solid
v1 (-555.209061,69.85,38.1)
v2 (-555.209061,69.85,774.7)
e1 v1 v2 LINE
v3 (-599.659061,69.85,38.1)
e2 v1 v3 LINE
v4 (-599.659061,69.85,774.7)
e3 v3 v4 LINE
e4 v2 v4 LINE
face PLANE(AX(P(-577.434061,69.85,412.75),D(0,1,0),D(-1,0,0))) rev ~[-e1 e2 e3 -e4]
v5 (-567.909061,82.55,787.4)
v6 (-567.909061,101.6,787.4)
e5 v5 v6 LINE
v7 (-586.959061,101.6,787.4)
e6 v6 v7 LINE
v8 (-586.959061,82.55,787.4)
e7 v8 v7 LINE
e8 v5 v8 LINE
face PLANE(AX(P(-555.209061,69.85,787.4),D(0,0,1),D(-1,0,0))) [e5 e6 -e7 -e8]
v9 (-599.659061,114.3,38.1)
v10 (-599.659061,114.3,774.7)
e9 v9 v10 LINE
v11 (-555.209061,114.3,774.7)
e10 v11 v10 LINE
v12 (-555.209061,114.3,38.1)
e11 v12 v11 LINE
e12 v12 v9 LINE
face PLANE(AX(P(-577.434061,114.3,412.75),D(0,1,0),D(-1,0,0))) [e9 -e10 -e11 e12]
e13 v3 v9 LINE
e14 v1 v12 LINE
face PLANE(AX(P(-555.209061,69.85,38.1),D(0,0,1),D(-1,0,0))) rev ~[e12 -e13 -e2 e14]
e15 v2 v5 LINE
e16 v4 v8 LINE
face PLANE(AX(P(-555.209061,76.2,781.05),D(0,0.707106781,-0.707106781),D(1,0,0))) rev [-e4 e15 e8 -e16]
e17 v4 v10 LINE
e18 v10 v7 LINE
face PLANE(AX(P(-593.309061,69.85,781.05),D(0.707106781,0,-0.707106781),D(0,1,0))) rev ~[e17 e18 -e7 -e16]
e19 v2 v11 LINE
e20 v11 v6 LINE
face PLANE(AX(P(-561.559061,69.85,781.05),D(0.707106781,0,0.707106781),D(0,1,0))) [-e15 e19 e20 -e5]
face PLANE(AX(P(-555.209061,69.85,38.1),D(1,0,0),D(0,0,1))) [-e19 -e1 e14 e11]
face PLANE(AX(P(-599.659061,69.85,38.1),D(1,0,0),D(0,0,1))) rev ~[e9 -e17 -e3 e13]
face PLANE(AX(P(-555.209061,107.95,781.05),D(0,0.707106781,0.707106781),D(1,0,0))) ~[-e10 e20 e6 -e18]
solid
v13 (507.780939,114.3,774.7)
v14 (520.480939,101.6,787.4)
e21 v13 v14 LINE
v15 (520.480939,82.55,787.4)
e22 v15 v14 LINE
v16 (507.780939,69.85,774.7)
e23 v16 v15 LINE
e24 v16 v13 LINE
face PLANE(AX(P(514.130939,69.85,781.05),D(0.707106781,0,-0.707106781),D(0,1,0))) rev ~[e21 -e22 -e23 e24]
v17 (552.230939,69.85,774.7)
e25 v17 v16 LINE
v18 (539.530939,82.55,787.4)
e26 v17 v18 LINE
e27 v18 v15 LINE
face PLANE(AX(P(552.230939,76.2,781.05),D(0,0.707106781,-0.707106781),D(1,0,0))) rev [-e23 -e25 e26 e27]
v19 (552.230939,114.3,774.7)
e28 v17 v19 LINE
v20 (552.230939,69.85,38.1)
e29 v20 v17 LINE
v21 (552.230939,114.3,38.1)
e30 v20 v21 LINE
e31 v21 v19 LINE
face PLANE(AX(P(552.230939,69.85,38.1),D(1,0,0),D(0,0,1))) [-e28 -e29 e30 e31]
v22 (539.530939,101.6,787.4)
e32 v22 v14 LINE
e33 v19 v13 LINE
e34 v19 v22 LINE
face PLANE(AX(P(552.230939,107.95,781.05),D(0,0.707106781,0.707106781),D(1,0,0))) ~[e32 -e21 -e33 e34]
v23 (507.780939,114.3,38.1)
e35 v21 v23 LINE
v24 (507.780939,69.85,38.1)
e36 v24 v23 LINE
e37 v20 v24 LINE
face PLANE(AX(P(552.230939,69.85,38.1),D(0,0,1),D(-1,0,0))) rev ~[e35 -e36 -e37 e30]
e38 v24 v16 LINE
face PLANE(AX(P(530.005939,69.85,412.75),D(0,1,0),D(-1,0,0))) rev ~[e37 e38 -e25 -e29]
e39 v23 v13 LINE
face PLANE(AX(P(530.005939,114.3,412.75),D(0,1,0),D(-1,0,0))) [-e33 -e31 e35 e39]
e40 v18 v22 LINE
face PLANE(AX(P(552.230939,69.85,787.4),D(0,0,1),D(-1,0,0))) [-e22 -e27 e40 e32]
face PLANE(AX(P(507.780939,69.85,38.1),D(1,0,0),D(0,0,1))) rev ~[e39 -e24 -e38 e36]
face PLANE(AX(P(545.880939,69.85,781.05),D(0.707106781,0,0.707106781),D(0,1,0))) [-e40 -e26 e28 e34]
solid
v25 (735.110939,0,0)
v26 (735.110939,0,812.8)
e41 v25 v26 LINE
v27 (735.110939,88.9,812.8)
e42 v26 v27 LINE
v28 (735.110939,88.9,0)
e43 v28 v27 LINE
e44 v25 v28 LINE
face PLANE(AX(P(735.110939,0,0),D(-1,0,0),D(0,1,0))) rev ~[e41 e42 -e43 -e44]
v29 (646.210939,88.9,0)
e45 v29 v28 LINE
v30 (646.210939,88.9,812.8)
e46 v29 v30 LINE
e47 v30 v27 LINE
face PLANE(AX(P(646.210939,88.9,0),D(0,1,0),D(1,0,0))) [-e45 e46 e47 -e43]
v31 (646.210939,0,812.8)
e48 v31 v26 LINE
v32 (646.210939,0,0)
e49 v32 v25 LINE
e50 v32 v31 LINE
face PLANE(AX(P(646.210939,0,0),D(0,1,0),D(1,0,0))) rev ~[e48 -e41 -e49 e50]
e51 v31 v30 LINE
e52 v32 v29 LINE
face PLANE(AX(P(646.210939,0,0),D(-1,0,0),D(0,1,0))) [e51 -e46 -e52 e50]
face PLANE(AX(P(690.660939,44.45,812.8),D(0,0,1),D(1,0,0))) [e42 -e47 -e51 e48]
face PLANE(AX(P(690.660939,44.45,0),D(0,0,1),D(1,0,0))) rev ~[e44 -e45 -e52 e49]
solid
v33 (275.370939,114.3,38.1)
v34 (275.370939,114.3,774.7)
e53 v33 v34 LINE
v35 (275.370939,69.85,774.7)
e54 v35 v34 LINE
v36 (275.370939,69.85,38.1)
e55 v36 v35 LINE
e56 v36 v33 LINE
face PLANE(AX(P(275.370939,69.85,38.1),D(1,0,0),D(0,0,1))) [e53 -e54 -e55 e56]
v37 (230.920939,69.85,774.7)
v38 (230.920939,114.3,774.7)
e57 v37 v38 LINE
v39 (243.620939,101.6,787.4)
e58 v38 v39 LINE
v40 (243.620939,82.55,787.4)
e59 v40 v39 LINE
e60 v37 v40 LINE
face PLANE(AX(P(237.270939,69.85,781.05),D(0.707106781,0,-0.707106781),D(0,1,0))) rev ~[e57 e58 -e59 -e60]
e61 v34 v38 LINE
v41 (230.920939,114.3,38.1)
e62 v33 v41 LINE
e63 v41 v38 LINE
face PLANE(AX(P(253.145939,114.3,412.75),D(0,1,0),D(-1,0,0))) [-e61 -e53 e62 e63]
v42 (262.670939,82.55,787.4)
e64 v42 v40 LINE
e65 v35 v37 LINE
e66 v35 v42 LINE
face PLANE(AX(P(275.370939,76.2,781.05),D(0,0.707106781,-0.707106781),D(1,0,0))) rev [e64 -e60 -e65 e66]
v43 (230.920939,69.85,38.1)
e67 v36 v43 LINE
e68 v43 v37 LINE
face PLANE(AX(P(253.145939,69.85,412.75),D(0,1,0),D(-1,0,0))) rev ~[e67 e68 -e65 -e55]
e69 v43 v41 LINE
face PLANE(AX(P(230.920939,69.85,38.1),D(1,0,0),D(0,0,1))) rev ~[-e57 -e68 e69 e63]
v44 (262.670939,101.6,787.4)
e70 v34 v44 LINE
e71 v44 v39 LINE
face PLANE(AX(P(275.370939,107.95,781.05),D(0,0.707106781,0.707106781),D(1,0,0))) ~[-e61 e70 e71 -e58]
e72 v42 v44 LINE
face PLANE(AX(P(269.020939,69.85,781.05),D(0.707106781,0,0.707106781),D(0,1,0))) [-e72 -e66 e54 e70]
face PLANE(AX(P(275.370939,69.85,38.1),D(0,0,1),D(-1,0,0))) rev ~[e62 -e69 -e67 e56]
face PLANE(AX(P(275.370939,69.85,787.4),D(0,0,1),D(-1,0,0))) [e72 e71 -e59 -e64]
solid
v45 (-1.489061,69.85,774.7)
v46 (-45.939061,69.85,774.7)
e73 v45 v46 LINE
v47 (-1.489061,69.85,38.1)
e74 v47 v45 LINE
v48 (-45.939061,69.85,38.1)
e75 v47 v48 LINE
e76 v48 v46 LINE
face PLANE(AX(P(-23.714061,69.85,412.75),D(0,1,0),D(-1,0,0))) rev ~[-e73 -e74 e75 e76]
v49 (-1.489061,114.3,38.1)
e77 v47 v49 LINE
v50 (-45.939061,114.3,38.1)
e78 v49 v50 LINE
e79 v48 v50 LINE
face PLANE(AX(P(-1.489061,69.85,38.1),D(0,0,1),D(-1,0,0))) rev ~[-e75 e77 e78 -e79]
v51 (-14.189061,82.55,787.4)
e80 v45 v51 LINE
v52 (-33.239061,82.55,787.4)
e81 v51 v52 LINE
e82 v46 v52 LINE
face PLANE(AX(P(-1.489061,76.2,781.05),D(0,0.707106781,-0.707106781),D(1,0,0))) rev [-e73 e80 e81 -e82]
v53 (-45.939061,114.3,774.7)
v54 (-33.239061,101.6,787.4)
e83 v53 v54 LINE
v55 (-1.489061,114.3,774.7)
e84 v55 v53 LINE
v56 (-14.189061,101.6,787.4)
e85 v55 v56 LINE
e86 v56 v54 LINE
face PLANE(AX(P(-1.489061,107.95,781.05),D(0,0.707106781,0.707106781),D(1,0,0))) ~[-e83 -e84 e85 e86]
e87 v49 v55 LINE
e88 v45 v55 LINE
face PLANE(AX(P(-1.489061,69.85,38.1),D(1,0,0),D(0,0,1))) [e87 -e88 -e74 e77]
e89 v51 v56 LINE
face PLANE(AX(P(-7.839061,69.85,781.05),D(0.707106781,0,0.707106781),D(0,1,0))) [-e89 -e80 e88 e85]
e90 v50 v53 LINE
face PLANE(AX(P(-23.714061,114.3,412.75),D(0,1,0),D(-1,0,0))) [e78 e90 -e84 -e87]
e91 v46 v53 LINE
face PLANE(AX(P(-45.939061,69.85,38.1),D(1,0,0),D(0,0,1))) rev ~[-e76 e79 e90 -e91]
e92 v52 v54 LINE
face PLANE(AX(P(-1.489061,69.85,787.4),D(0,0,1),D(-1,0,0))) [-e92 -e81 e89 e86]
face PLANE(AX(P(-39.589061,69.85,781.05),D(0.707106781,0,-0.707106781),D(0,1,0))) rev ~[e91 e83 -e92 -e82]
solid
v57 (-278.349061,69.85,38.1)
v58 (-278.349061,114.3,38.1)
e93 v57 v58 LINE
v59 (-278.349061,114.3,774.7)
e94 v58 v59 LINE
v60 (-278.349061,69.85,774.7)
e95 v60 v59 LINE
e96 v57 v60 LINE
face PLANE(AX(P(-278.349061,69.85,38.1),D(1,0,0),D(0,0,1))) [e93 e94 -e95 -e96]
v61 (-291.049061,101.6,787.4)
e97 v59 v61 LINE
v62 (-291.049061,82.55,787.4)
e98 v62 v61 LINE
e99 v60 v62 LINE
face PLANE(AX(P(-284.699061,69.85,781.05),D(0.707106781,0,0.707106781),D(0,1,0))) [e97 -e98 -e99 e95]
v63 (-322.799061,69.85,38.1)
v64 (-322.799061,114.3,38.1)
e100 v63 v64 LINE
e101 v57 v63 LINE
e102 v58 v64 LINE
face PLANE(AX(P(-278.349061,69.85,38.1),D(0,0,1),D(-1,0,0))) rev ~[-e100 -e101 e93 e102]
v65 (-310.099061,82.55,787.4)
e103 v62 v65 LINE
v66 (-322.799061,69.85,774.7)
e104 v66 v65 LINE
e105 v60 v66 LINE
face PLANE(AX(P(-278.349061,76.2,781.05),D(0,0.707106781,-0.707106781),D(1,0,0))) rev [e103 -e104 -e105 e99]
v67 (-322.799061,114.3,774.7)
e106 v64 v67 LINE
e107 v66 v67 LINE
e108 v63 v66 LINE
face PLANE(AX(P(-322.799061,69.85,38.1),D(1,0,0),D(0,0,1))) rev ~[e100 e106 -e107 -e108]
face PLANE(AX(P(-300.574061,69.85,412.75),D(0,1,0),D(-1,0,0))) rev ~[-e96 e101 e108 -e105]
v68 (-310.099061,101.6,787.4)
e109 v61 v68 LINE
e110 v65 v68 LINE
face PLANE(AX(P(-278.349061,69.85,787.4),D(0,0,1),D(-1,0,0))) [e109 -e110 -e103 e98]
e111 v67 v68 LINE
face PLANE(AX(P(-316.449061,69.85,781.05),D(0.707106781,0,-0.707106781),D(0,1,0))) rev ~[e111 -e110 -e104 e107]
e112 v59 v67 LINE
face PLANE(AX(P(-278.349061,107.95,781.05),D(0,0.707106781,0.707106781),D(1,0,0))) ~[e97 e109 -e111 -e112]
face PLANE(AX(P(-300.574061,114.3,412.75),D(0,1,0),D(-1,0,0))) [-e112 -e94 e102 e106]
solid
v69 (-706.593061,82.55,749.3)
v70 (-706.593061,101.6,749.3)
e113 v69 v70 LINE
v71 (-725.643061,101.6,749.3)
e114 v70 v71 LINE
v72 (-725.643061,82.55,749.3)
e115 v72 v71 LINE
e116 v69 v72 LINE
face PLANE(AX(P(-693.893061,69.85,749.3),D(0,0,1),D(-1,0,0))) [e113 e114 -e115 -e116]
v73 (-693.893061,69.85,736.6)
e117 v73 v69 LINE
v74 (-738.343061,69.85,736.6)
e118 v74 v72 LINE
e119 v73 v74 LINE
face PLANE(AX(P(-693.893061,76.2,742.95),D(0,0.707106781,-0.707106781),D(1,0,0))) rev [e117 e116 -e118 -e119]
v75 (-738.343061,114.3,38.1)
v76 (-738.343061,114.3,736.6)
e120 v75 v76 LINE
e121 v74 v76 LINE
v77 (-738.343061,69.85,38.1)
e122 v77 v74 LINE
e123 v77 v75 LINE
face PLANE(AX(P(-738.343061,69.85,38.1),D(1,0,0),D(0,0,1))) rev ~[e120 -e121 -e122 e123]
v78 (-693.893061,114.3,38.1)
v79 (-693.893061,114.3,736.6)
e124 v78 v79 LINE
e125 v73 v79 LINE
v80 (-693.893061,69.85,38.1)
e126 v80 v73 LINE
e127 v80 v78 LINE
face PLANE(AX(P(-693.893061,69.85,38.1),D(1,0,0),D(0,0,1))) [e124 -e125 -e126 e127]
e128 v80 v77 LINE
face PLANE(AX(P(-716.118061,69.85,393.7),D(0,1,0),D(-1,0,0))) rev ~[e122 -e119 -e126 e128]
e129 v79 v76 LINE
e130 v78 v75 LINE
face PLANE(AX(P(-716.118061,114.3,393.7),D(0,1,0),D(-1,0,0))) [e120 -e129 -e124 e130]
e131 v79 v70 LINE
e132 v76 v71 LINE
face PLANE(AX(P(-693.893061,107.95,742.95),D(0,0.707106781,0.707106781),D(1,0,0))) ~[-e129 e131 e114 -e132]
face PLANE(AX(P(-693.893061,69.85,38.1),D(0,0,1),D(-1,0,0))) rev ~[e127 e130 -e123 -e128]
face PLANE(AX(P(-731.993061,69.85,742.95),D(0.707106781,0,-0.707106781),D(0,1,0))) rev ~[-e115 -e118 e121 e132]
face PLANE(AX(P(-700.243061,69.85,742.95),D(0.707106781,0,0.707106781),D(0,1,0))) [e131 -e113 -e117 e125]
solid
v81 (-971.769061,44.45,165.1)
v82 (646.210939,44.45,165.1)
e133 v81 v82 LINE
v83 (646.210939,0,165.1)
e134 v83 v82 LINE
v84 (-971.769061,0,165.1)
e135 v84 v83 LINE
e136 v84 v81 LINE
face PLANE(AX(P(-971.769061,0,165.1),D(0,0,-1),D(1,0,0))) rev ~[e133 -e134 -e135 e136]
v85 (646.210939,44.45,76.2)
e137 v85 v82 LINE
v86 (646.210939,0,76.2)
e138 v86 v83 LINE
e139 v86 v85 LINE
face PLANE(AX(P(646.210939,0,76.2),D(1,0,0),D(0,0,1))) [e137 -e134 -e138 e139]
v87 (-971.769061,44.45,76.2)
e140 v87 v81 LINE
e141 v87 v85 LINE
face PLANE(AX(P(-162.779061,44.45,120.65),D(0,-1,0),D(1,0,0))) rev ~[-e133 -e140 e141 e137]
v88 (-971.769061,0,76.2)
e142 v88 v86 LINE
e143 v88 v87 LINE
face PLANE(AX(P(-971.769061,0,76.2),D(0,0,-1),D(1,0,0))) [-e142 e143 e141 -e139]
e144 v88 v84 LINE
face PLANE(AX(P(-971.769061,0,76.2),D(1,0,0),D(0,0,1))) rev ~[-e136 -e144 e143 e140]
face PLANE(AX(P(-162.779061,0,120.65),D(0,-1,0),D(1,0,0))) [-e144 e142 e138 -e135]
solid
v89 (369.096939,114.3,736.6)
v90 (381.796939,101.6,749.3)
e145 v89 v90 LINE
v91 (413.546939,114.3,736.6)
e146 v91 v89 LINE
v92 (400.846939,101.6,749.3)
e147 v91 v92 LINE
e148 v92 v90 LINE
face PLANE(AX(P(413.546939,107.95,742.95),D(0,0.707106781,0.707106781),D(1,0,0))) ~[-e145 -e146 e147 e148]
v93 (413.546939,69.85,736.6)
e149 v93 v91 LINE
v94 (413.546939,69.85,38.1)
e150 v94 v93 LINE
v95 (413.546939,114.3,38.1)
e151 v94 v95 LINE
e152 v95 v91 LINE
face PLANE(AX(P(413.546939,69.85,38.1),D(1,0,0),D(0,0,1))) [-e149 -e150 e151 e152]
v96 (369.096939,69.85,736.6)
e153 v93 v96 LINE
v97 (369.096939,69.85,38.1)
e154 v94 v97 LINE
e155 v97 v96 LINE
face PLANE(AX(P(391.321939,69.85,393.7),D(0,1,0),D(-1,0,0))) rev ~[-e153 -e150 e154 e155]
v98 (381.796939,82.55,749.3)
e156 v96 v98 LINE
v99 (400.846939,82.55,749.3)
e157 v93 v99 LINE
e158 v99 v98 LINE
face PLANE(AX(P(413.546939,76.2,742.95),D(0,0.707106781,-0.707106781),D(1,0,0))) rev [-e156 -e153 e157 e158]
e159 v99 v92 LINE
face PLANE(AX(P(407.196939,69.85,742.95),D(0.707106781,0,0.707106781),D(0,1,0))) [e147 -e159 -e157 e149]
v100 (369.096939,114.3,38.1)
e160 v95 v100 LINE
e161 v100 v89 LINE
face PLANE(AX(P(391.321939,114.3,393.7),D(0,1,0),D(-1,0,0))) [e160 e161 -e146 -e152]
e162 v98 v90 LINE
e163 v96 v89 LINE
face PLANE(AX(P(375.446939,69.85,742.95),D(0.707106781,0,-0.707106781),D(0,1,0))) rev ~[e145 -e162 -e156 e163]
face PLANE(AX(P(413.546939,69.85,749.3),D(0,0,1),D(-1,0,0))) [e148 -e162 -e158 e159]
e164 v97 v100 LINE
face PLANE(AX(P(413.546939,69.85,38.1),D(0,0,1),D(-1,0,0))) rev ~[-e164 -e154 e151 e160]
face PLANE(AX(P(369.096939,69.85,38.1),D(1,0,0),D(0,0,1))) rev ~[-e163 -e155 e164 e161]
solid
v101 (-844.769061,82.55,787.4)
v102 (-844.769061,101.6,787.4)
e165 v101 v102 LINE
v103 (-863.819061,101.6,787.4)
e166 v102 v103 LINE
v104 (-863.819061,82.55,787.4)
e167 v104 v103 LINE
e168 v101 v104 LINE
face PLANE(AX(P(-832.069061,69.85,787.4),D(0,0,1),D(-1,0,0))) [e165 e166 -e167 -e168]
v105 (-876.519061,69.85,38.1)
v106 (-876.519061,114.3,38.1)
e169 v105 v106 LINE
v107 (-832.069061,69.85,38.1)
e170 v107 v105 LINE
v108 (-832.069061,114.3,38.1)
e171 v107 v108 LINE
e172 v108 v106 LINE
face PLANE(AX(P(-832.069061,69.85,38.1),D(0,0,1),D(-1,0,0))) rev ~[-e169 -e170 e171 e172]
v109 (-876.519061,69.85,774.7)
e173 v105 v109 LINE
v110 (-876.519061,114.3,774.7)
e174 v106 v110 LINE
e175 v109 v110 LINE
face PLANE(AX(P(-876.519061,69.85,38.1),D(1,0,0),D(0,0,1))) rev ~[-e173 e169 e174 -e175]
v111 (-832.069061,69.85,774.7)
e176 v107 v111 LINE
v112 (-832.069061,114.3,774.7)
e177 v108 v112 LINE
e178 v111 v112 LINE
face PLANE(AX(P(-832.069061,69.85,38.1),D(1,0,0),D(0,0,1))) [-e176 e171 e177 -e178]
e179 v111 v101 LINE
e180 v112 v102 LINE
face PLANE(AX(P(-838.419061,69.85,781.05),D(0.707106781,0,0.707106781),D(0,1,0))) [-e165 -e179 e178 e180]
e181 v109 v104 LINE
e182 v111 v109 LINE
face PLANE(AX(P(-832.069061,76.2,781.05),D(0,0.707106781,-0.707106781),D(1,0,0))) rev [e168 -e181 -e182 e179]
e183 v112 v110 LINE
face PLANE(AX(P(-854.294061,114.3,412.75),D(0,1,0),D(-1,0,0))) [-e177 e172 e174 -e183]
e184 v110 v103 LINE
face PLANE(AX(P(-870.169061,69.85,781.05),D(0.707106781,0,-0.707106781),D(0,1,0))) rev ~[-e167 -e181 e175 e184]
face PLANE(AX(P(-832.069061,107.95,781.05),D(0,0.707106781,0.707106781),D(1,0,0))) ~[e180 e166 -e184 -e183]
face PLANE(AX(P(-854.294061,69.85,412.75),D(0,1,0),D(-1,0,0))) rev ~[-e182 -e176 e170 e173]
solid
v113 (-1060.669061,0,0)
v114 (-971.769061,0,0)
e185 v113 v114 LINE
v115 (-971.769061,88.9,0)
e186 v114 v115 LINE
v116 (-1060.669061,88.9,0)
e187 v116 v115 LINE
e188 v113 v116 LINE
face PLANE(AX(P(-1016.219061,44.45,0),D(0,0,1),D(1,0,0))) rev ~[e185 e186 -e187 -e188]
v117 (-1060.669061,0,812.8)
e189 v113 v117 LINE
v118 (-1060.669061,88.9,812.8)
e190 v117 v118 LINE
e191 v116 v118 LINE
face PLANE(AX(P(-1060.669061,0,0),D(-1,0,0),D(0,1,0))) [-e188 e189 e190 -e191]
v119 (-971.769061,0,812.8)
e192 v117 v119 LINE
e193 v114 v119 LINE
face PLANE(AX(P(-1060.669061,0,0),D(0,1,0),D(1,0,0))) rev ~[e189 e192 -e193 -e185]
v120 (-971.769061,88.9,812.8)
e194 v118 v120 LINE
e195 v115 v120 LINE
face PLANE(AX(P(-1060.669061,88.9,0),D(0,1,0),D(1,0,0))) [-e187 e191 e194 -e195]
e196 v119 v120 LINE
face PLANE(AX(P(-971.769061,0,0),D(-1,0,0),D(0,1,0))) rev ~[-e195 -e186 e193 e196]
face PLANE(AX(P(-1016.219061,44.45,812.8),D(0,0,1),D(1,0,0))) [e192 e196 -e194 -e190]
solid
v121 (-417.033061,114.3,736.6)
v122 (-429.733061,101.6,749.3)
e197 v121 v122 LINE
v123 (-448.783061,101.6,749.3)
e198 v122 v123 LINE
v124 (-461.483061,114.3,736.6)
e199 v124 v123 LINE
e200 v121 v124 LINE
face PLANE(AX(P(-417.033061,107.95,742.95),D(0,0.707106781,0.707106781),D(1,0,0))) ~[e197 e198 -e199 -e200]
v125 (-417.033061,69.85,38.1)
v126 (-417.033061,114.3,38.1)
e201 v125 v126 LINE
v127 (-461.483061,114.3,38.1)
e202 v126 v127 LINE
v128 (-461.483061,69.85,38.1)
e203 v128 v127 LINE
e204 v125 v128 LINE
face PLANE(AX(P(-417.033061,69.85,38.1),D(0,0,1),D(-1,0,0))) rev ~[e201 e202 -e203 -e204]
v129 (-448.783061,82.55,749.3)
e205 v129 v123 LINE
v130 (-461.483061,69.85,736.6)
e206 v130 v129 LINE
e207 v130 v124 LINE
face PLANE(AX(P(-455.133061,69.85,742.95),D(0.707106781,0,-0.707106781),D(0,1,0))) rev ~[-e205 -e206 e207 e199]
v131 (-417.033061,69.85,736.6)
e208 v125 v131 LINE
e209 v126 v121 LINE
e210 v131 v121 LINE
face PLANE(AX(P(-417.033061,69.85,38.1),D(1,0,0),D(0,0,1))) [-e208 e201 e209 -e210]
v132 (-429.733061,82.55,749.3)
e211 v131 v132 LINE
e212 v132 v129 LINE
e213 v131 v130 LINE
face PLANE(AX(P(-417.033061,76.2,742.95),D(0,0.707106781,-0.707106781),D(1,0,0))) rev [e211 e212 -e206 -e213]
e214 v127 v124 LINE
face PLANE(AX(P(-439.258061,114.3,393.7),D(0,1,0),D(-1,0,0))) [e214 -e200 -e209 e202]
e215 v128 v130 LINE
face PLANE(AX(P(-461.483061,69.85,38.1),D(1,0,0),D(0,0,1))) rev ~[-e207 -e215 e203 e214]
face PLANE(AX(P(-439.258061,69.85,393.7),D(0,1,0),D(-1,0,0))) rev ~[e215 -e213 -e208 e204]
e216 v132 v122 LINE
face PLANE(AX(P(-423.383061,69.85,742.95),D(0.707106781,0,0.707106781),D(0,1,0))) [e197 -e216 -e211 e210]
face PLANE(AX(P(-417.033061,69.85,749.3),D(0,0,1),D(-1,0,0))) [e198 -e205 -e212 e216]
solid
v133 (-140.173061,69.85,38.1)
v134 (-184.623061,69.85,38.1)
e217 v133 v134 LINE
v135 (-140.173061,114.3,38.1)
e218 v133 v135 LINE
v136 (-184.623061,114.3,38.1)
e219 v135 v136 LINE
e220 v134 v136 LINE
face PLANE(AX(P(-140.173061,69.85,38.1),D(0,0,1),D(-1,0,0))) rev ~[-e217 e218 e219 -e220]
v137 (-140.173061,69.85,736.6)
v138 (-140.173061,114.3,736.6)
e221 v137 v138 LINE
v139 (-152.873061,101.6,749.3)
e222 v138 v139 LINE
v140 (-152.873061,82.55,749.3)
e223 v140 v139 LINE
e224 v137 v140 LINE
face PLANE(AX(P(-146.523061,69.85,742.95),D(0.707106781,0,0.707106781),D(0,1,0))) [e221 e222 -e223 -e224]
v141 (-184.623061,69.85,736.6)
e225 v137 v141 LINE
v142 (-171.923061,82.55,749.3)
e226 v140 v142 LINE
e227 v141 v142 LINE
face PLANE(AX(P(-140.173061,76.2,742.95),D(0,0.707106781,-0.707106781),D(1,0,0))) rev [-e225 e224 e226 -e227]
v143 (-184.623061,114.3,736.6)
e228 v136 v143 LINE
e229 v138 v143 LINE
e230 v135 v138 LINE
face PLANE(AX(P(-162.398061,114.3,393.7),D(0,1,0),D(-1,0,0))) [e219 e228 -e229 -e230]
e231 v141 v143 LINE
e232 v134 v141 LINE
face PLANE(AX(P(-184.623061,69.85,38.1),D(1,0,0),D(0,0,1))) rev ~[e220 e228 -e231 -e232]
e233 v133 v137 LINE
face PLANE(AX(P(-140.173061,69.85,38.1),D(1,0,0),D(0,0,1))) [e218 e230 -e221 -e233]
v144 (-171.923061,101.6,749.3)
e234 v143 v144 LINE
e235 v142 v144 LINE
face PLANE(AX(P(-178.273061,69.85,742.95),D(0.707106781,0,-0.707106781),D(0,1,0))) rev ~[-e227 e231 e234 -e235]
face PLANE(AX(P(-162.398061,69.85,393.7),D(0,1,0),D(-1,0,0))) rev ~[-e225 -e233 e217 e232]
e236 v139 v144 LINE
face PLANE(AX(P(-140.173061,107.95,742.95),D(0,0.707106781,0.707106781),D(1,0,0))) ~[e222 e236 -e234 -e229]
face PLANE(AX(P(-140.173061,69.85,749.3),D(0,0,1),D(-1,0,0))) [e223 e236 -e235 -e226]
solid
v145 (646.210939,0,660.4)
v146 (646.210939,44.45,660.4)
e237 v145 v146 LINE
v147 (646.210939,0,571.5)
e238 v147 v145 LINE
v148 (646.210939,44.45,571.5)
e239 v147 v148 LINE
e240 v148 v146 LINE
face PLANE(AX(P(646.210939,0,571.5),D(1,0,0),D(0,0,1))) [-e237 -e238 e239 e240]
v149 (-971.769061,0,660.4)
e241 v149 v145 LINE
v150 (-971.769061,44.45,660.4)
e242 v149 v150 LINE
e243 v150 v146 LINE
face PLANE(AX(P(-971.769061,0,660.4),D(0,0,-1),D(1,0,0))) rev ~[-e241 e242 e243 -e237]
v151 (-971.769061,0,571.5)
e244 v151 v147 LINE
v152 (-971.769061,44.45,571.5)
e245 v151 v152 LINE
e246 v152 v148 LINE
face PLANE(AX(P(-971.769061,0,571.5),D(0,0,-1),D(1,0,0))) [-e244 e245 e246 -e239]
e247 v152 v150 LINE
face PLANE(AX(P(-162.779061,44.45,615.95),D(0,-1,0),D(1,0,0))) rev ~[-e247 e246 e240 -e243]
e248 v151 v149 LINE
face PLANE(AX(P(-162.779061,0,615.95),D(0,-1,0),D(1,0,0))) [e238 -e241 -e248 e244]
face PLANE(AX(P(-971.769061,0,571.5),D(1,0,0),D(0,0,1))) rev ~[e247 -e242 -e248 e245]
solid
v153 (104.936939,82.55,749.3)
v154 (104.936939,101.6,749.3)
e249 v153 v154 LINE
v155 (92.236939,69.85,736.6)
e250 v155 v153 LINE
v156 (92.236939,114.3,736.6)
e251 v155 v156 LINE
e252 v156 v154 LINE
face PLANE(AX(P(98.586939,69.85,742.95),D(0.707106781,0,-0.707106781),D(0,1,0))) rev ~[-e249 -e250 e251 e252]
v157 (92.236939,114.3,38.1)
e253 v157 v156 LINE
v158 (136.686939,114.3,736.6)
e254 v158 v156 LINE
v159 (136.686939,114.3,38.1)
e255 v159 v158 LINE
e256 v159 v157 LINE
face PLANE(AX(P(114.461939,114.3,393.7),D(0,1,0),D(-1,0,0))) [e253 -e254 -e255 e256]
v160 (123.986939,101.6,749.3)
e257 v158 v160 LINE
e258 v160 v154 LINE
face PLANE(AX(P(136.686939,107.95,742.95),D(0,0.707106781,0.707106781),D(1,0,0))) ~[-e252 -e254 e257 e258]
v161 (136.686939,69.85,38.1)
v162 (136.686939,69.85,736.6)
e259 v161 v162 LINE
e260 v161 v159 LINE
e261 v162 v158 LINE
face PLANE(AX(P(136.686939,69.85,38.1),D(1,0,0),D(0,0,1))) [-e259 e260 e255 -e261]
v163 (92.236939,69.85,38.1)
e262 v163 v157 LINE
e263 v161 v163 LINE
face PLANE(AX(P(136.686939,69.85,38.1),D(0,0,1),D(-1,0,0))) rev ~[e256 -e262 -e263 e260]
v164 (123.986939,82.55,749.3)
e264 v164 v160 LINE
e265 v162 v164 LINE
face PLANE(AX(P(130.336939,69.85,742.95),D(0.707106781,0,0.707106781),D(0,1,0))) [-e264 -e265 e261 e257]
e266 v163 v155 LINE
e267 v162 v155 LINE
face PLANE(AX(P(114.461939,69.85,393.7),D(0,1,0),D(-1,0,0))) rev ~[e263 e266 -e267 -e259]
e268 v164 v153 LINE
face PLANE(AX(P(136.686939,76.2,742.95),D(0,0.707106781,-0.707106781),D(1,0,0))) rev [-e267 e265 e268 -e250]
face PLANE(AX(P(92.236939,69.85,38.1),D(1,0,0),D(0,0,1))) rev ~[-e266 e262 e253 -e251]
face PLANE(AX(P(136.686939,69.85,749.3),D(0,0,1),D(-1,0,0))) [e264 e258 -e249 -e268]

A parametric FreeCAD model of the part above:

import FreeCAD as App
import Part
import Sketcher
Q = App.Units.Quantity


def edges_at(feature, points):
    """Names of the edges that pass closest to the given points."""
    edges = feature.Shape.Edges
    near = lambda p: min(range(len(edges)), key=lambda i: edges[i].distToShape(Part.Vertex(*p))[0])
    return sorted({f"Edge{near(p) + 1}" for p in points})

doc = App.newDocument("Part")
body = doc.addObject("PartDesign::Body", "Body")

# Sketch on XY plane
sketch1 = body.newObject("Sketcher::SketchObject", "Sketch")
sketch1.AttachmentSupport = (doc.getObject("XY_Plane"), [""])
sketch1.MapMode = "FlatFace"
sketch1.addGeometry([
    Part.LineSegment(App.Vector(-1060.669061, 88.9, 0), App.Vector(-1060.669061, 0, 0)),
    Part.LineSegment(App.Vector(-1060.669061, 0, 0), App.Vector(-971.769061, 0, 0)),
    Part.LineSegment(App.Vector(-971.769061, 0, 0), App.Vector(-971.769061, 88.9, 0)),
    Part.LineSegment(App.Vector(-971.769061, 88.9, 0), App.Vector(-1060.669061, 88.9, 0)),
], False)
sketch1.addConstraint([
    Sketcher.Constraint("Coincident", 0, 2, 1, 1),
    Sketcher.Constraint("Coincident", 1, 2, 2, 1),
    Sketcher.Constraint("Coincident", 2, 2, 3, 1),
    Sketcher.Constraint("Coincident", 3, 2, 0, 1),
    Sketcher.Constraint("Vertical", 0),
    Sketcher.Constraint("Horizontal", 1),
    Sketcher.Constraint("Vertical", 2),
    Sketcher.Constraint("Horizontal", 3),
    Sketcher.Constraint("PointOnObject", 0, 2, -1),
    Sketcher.Constraint("Equal", 3, 0),
    Sketcher.Constraint("DistanceX", 1, 1, 1, 2, Q("3.5 in")),
    Sketcher.Constraint("DistanceX", 0, 2, -1, 1, Q("1060.669061 mm")),
])
pad1 = body.newObject("PartDesign::Pad", "Pad")
pad1.Profile = sketch1
pad1.Length = Q("32 in")
body2 = doc.addObject("PartDesign::Body", "Body001")

# Sketch on XY plane
sketch2 = body2.newObject("Sketcher::SketchObject", "Sketch001")
sketch2.AttachmentSupport = (doc.getObject("XY_Plane001"), [""])
sketch2.MapMode = "FlatFace"
sketch2.addGeometry([
    Part.LineSegment(App.Vector(646.210939, 88.9, 0), App.Vector(646.210939, 0, 0)),
    Part.LineSegment(App.Vector(646.210939, 0, 0), App.Vector(735.110939, 0, 0)),
    Part.LineSegment(App.Vector(735.110939, 0, 0), App.Vector(735.110939, 88.9, 0)),
    Part.LineSegment(App.Vector(735.110939, 88.9, 0), App.Vector(646.210939, 88.9, 0)),
], False)
sketch2.addConstraint([
    Sketcher.Constraint("Coincident", 0, 2, 1, 1),
    Sketcher.Constraint("Coincident", 1, 2, 2, 1),
    Sketcher.Constraint("Coincident", 2, 2, 3, 1),
    Sketcher.Constraint("Coincident", 3, 2, 0, 1),
    Sketcher.Constraint("Vertical", 0),
    Sketcher.Constraint("Horizontal", 1),
    Sketcher.Constraint("Vertical", 2),
    Sketcher.Constraint("Horizontal", 3),
    Sketcher.Constraint("PointOnObject", 0, 2, -1),
    Sketcher.Constraint("Equal", 3, 0),
    Sketcher.Constraint("DistanceX", 1, 1, 1, 2, Q("3.5 in")),
    Sketcher.Constraint("DistanceX", -1, 1, 0, 2, Q("646.210939 mm")),
])
pad2 = body2.newObject("PartDesign::Pad", "Pad001")
pad2.Profile = sketch2
pad2.Length = Q("32 in")
body3 = doc.addObject("PartDesign::Body", "Body002")

# Sketch on XZ plane
sketch3 = body3.newObject("Sketcher::SketchObject", "Sketch002")
sketch3.AttachmentSupport = (doc.getObject("XZ_Plane002"), [""])
sketch3.MapMode = "FlatFace"
sketch3.addGeometry([
    Part.LineSegment(App.Vector(-971.769061, 660.4, 0), App.Vector(-971.769061, 571.5, 0)),
    Part.LineSegment(App.Vector(-971.769061, 571.5, 0), App.Vector(646.210939, 571.5, 0)),
    Part.LineSegment(App.Vector(646.210939, 571.5, 0), App.Vector(646.210939, 660.4, 0)),
    Part.LineSegment(App.Vector(646.210939, 660.4, 0), App.Vector(-971.769061, 660.4, 0)),
], False)
sketch3.addConstraint([
    Sketcher.Constraint("Coincident", 0, 2, 1, 1),
    Sketcher.Constraint("Coincident", 1, 2, 2, 1),
    Sketcher.Constraint("Coincident", 2, 2, 3, 1),
    Sketcher.Constraint("Coincident", 3, 2, 0, 1),
    Sketcher.Constraint("Vertical", 0),
    Sketcher.Constraint("Horizontal", 1),
    Sketcher.Constraint("Vertical", 2),
    Sketcher.Constraint("Horizontal", 3),
    Sketcher.Constraint("DistanceX", 1, 1, 1, 2, Q("63.7 in")),
    Sketcher.Constraint("DistanceY", 0, 2, 0, 1, Q("3.5 in")),
    Sketcher.Constraint("DistanceY", -1, 1, 2, 2, Q("26 in")),
    Sketcher.Constraint("DistanceX", 0, 2, -1, 1, Q("971.769061 mm")),
])
pad3 = body3.newObject("PartDesign::Pad", "Pad002")
pad3.Profile = sketch3
pad3.Length = Q("1.75 in")
pad3.Reversed = True
body4 = doc.addObject("PartDesign::Body", "Body003")

# Sketch on XZ plane
sketch4 = body4.newObject("Sketcher::SketchObject", "Sketch003")
sketch4.AttachmentSupport = (doc.getObject("XZ_Plane003"), [""])
sketch4.MapMode = "FlatFace"
sketch4.addGeometry([
    Part.LineSegment(App.Vector(-971.769061, 165.1, 0), App.Vector(-971.769061, 76.2, 0)),
    Part.LineSegment(App.Vector(-971.769061, 76.2, 0), App.Vector(646.210939, 76.2, 0)),
    Part.LineSegment(App.Vector(646.210939, 76.2, 0), App.Vector(646.210939, 165.1, 0)),
    Part.LineSegment(App.Vector(646.210939, 165.1, 0), App.Vector(-971.769061, 165.1, 0)),
], False)
sketch4.addConstraint([
    Sketcher.Constraint("Coincident", 0, 2, 1, 1),
    Sketcher.Constraint("Coincident", 1, 2, 2, 1),
    Sketcher.Constraint("Coincident", 2, 2, 3, 1),
    Sketcher.Constraint("Coincident", 3, 2, 0, 1),
    Sketcher.Constraint("Vertical", 0),
    Sketcher.Constraint("Horizontal", 1),
    Sketcher.Constraint("Vertical", 2),
    Sketcher.Constraint("Horizontal", 3),
    Sketcher.Constraint("DistanceX", 1, 1, 1, 2, Q("63.7 in")),
    Sketcher.Constraint("DistanceY", 0, 2, 0, 1, Q("3.5 in")),
    Sketcher.Constraint("DistanceY", -1, 1, 0, 2, Q("3 in")),
    Sketcher.Constraint("DistanceX", 0, 2, -1, 1, Q("971.769061 mm")),
])
pad4 = body4.newObject("PartDesign::Pad", "Pad003")
pad4.Profile = sketch4
pad4.Length = Q("1.75 in")
pad4.Reversed = True
body5 = doc.addObject("PartDesign::Body", "Body004")

# Sketch on XZ plane
sketch5 = body5.newObject("Sketcher::SketchObject", "Sketch004")
sketch5.AttachmentSupport = (doc.getObject("XZ_Plane004"), [""])
sketch5.MapMode = "FlatFace"
sketch5.AttachmentOffset = App.Placement(App.Vector(0, 0, -2.75 * 25.4), App.Rotation())
sketch5.addGeometry([
    Part.LineSegment(App.Vector(552.230939, 787.4, 0), App.Vector(552.230939, 38.1, 0)),
    Part.LineSegment(App.Vector(552.230939, 38.1, 0), App.Vector(507.780939, 38.1, 0)),
    Part.LineSegment(App.Vector(507.780939, 38.1, 0), App.Vector(507.780939, 787.4, 0)),
    Part.LineSegment(App.Vector(507.780939, 787.4, 0), App.Vector(552.230939, 787.4, 0)),
], False)
sketch5.addConstraint([
    Sketcher.Constraint("Coincident", 0, 2, 1, 1),
    Sketcher.Constraint("Coincident", 1, 2, 2, 1),
    Sketcher.Constraint("Coincident", 2, 2, 3, 1),
    Sketcher.Constraint("Coincident", 3, 2, 0, 1),
    Sketcher.Constraint("Vertical", 0),
    Sketcher.Constraint("Horizontal", 1),
    Sketcher.Constraint("Vertical", 2),
    Sketcher.Constraint("Horizontal", 3),
    Sketcher.Constraint("DistanceY", 0, 2, 0, 1, Q("29.5 in")),
    Sketcher.Constraint("DistanceY", -1, 1, 2, 2, Q("31 in")),
    Sketcher.Constraint("DistanceX", 1, 2, 1, 1, Q("1.75 in")),
    Sketcher.Constraint("DistanceX", -1, 1, 0, 2, Q("552.230939 mm")),
])
pad5 = body5.newObject("PartDesign::Pad", "Pad004")
pad5.Profile = sketch5
pad5.Length = Q("1.75 in")
pad5.Reversed = True
doc.recompute()

chamfer = body5.newObject("PartDesign::Chamfer", "Chamfer")
chamfer.Base = (pad5, edges_at(pad5, [
    (507.781, 92.075, 787.4),
    (552.231, 92.075, 787.4),
    (530.006, 69.85, 787.4),
    (530.006, 114.3, 787.4),
]))
chamfer.Size = Q("0.5 in")
body6 = doc.addObject("PartDesign::Body", "Body005")

# Sketch on XZ plane
sketch6 = body6.newObject("Sketcher::SketchObject", "Sketch005")
sketch6.AttachmentSupport = (doc.getObject("XZ_Plane005"), [""])
sketch6.MapMode = "FlatFace"
sketch6.AttachmentOffset = App.Placement(App.Vector(0, 0, -2.75 * 25.4), App.Rotation())
sketch6.addGeometry([
    Part.LineSegment(App.Vector(275.370939, 787.4, 0), App.Vector(275.370939, 38.1, 0)),
    Part.LineSegment(App.Vector(275.370939, 38.1, 0), App.Vector(230.920939, 38.1, 0)),
    Part.LineSegment(App.Vector(230.920939, 38.1, 0), App.Vector(230.920939, 787.4, 0)),
    Part.LineSegment(App.Vector(230.920939, 787.4, 0), App.Vector(275.370939, 787.4, 0)),
], False)
sketch6.addConstraint([
    Sketcher.Constraint("Coincident", 0, 2, 1, 1),
    Sketcher.Constraint("Coincident", 1, 2, 2, 1),
    Sketcher.Constraint("Coincident", 2, 2, 3, 1),
    Sketcher.Constraint("Coincident", 3, 2, 0, 1),
    Sketcher.Constraint("Vertical", 0),
    Sketcher.Constraint("Horizontal", 1),
    Sketcher.Constraint("Vertical", 2),
    Sketcher.Constraint("Horizontal", 3),
    Sketcher.Constraint("DistanceY", 0, 2, 0, 1, Q("29.5 in")),
    Sketcher.Constraint("DistanceY", -1, 1, 2, 2, Q("31 in")),
    Sketcher.Constraint("DistanceX", 1, 2, 1, 1, Q("1.75 in")),
    Sketcher.Constraint("DistanceX", -1, 1, 0, 2, Q("275.370939 mm")),
])
pad6 = body6.newObject("PartDesign::Pad", "Pad005")
pad6.Profile = sketch6
pad6.Length = Q("1.75 in")
pad6.Reversed = True
doc.recompute()

chamfer2 = body6.newObject("PartDesign::Chamfer", "Chamfer001")
chamfer2.Base = (pad6, edges_at(pad6, [
    (230.921, 92.075, 787.4),
    (275.371, 92.075, 787.4),
    (253.146, 69.85, 787.4),
    (253.146, 114.3, 787.4),
]))
chamfer2.Size = Q("0.5 in")
body7 = doc.addObject("PartDesign::Body", "Body006")

# Sketch on XZ plane
sketch7 = body7.newObject("Sketcher::SketchObject", "Sketch006")
sketch7.AttachmentSupport = (doc.getObject("XZ_Plane006"), [""])
sketch7.MapMode = "FlatFace"
sketch7.AttachmentOffset = App.Placement(App.Vector(0, 0, -2.75 * 25.4), App.Rotation())
sketch7.addGeometry([
    Part.LineSegment(App.Vector(-1.489061, 787.4, 0), App.Vector(-1.489061, 38.1, 0)),
    Part.LineSegment(App.Vector(-1.489061, 38.1, 0), App.Vector(-45.939061, 38.1, 0)),
    Part.LineSegment(App.Vector(-45.939061, 38.1, 0), App.Vector(-45.939061, 787.4, 0)),
    Part.LineSegment(App.Vector(-45.939061, 787.4, 0), App.Vector(-1.489061, 787.4, 0)),
], False)
sketch7.addConstraint([
    Sketcher.Constraint("Coincident", 0, 2, 1, 1),
    Sketcher.Constraint("Coincident", 1, 2, 2, 1),
    Sketcher.Constraint("Coincident", 2, 2, 3, 1),
    Sketcher.Constraint("Coincident", 3, 2, 0, 1),
    Sketcher.Constraint("Vertical", 0),
    Sketcher.Constraint("Horizontal", 1),
    Sketcher.Constraint("Vertical", 2),
    Sketcher.Constraint("Horizontal", 3),
    Sketcher.Constraint("DistanceY", 0, 2, 0, 1, Q("29.5 in")),
    Sketcher.Constraint("DistanceY", -1, 1, 2, 2, Q("31 in")),
    Sketcher.Constraint("DistanceX", 1, 2, 1, 1, Q("1.75 in")),
    Sketcher.Constraint("DistanceX", 0, 2, -1, 1, Q("1.489061 mm")),
])
pad7 = body7.newObject("PartDesign::Pad", "Pad006")
pad7.Profile = sketch7
pad7.Length = Q("1.75 in")
pad7.Reversed = True
doc.recompute()

chamfer3 = body7.newObject("PartDesign::Chamfer", "Chamfer002")
chamfer3.Base = (pad7, edges_at(pad7, [
    (-45.939, 92.075, 787.4),
    (-1.489, 92.075, 787.4),
    (-23.714, 69.85, 787.4),
    (-23.714, 114.3, 787.4),
]))
chamfer3.Size = Q("0.5 in")
body8 = doc.addObject("PartDesign::Body", "Body007")

# Sketch on XZ plane
sketch8 = body8.newObject("Sketcher::SketchObject", "Sketch007")
sketch8.AttachmentSupport = (doc.getObject("XZ_Plane007"), [""])
sketch8.MapMode = "FlatFace"
sketch8.AttachmentOffset = App.Placement(App.Vector(0, 0, -2.75 * 25.4), App.Rotation())
sketch8.addGeometry([
    Part.LineSegment(App.Vector(-278.349061, 787.4, 0), App.Vector(-278.349061, 38.1, 0)),
    Part.LineSegment(App.Vector(-278.349061, 38.1, 0), App.Vector(-322.799061, 38.1, 0)),
    Part.LineSegment(App.Vector(-322.799061, 38.1, 0), App.Vector(-322.799061, 787.4, 0)),
    Part.LineSegment(App.Vector(-322.799061, 787.4, 0), App.Vector(-278.349061, 787.4, 0)),
], False)
sketch8.addConstraint([
    Sketcher.Constraint("Coincident", 0, 2, 1, 1),
    Sketcher.Constraint("Coincident", 1, 2, 2, 1),
    Sketcher.Constraint("Coincident", 2, 2, 3, 1),
    Sketcher.Constraint("Coincident", 3, 2, 0, 1),
    Sketcher.Constraint("Vertical", 0),
    Sketcher.Constraint("Horizontal", 1),
    Sketcher.Constraint("Vertical", 2),
    Sketcher.Constraint("Horizontal", 3),
    Sketcher.Constraint("DistanceY", 0, 2, 0, 1, Q("29.5 in")),
    Sketcher.Constraint("DistanceY", -1, 1, 2, 2, Q("31 in")),
    Sketcher.Constraint("DistanceX", 1, 2, 1, 1, Q("1.75 in")),
    Sketcher.Constraint("DistanceX", 0, 2, -1, 1, Q("278.349061 mm")),
])
pad8 = body8.newObject("PartDesign::Pad", "Pad007")
pad8.Profile = sketch8
pad8.Length = Q("1.75 in")
pad8.Reversed = True
doc.recompute()

chamfer4 = body8.newObject("PartDesign::Chamfer", "Chamfer003")
chamfer4.Base = (pad8, edges_at(pad8, [
    (-322.799, 92.075, 787.4),
    (-278.349, 92.075, 787.4),
    (-300.574, 69.85, 787.4),
    (-300.574, 114.3, 787.4),
]))
chamfer4.Size = Q("0.5 in")
body9 = doc.addObject("PartDesign::Body", "Body008")

# Sketch on XZ plane
sketch9 = body9.newObject("Sketcher::SketchObject", "Sketch008")
sketch9.AttachmentSupport = (doc.getObject("XZ_Plane008"), [""])
sketch9.MapMode = "FlatFace"
sketch9.AttachmentOffset = App.Placement(App.Vector(0, 0, -2.75 * 25.4), App.Rotation())
sketch9.addGeometry([
    Part.LineSegment(App.Vector(-555.209061, 787.4, 0), App.Vector(-555.209061, 38.1, 0)),
    Part.LineSegment(App.Vector(-555.209061, 38.1, 0), App.Vector(-599.659061, 38.1, 0)),
    Part.LineSegment(App.Vector(-599.659061, 38.1, 0), App.Vector(-599.659061, 787.4, 0)),
    Part.LineSegment(App.Vector(-599.659061, 787.4, 0), App.Vector(-555.209061, 787.4, 0)),
], False)
sketch9.addConstraint([
    Sketcher.Constraint("Coincident", 0, 2, 1, 1),
    Sketcher.Constraint("Coincident", 1, 2, 2, 1),
    Sketcher.Constraint("Coincident", 2, 2, 3, 1),
    Sketcher.Constraint("Coincident", 3, 2, 0, 1),
    Sketcher.Constraint("Vertical", 0),
    Sketcher.Constraint("Horizontal", 1),
    Sketcher.Constraint("Vertical", 2),
    Sketcher.Constraint("Horizontal", 3),
    Sketcher.Constraint("DistanceY", 0, 2, 0, 1, Q("29.5 in")),
    Sketcher.Constraint("DistanceY", -1, 1, 2, 2, Q("31 in")),
    Sketcher.Constraint("DistanceX", 1, 2, 1, 1, Q("1.75 in")),
    Sketcher.Constraint("DistanceX", 0, 2, -1, 1, Q("555.209061 mm")),
])
pad9 = body9.newObject("PartDesign::Pad", "Pad008")
pad9.Profile = sketch9
pad9.Length = Q("1.75 in")
pad9.Reversed = True
doc.recompute()

chamfer5 = body9.newObject("PartDesign::Chamfer", "Chamfer004")
chamfer5.Base = (pad9, edges_at(pad9, [
    (-599.659, 92.075, 787.4),
    (-555.209, 92.075, 787.4),
    (-577.434, 69.85, 787.4),
    (-577.434, 114.3, 787.4),
]))
chamfer5.Size = Q("0.5 in")
body10 = doc.addObject("PartDesign::Body", "Body009")

# Sketch on XZ plane
sketch10 = body10.newObject("Sketcher::SketchObject", "Sketch009")
sketch10.AttachmentSupport = (doc.getObject("XZ_Plane009"), [""])
sketch10.MapMode = "FlatFace"
sketch10.AttachmentOffset = App.Placement(App.Vector(0, 0, -2.75 * 25.4), App.Rotation())
sketch10.addGeometry([
    Part.LineSegment(App.Vector(-832.069061, 787.4, 0), App.Vector(-832.069061, 38.1, 0)),
    Part.LineSegment(App.Vector(-832.069061, 38.1, 0), App.Vector(-876.519061, 38.1, 0)),
    Part.LineSegment(App.Vector(-876.519061, 38.1, 0), App.Vector(-876.519061, 787.4, 0)),
    Part.LineSegment(App.Vector(-876.519061, 787.4, 0), App.Vector(-832.069061, 787.4, 0)),
], False)
sketch10.addConstraint([
    Sketcher.Constraint("Coincident", 0, 2, 1, 1),
    Sketcher.Constraint("Coincident", 1, 2, 2, 1),
    Sketcher.Constraint("Coincident", 2, 2, 3, 1),
    Sketcher.Constraint("Coincident", 3, 2, 0, 1),
    Sketcher.Constraint("Vertical", 0),
    Sketcher.Constraint("Horizontal", 1),
    Sketcher.Constraint("Vertical", 2),
    Sketcher.Constraint("Horizontal", 3),
    Sketcher.Constraint("DistanceY", 0, 2, 0, 1, Q("29.5 in")),
    Sketcher.Constraint("DistanceY", -1, 1, 2, 2, Q("31 in")),
    Sketcher.Constraint("DistanceX", 1, 2, 1, 1, Q("1.75 in")),
    Sketcher.Constraint("DistanceX", 0, 2, -1, 1, Q("832.069061 mm")),
])
pad10 = body10.newObject("PartDesign::Pad", "Pad009")
pad10.Profile = sketch10
pad10.Length = Q("1.75 in")
pad10.Reversed = True
doc.recompute()

chamfer6 = body10.newObject("PartDesign::Chamfer", "Chamfer005")
chamfer6.Base = (pad10, edges_at(pad10, [
    (-876.519, 92.075, 787.4),
    (-832.069, 92.075, 787.4),
    (-854.294, 69.85, 787.4),
    (-854.294, 114.3, 787.4),
]))
chamfer6.Size = Q("0.5 in")
body11 = doc.addObject("PartDesign::Body", "Body010")

# Sketch on XZ plane
sketch11 = body11.newObject("Sketcher::SketchObject", "Sketch010")
sketch11.AttachmentSupport = (doc.getObject("XZ_Plane010"), [""])
sketch11.MapMode = "FlatFace"
sketch11.AttachmentOffset = App.Placement(App.Vector(0, 0, -2.75 * 25.4), App.Rotation())
sketch11.addGeometry([
    Part.LineSegment(App.Vector(413.546939, 749.3, 0), App.Vector(413.546939, 38.1, 0)),
    Part.LineSegment(App.Vector(413.546939, 38.1, 0), App.Vector(369.096939, 38.1, 0)),
    Part.LineSegment(App.Vector(369.096939, 38.1, 0), App.Vector(369.096939, 749.3, 0)),
    Part.LineSegment(App.Vector(369.096939, 749.3, 0), App.Vector(413.546939, 749.3, 0)),
], False)
sketch11.addConstraint([
    Sketcher.Constraint("Coincident", 0, 2, 1, 1),
    Sketcher.Constraint("Coincident", 1, 2, 2, 1),
    Sketcher.Constraint("Coincident", 2, 2, 3, 1),
    Sketcher.Constraint("Coincident", 3, 2, 0, 1),
    Sketcher.Constraint("Vertical", 0),
    Sketcher.Constraint("Horizontal", 1),
    Sketcher.Constraint("Vertical", 2),
    Sketcher.Constraint("Horizontal", 3),
    Sketcher.Constraint("DistanceY", 0, 2, 0, 1, Q("28 in")),
    Sketcher.Constraint("DistanceX", 1, 2, 1, 1, Q("1.75 in")),
    Sketcher.Constraint("DistanceY", -1, 1, 0, 2, Q("1.5 in")),
    Sketcher.Constraint("DistanceX", -1, 1, 0, 2, Q("413.546939 mm")),
])
pad11 = body11.newObject("PartDesign::Pad", "Pad010")
pad11.Profile = sketch11
pad11.Length = Q("1.75 in")
pad11.Reversed = True
doc.recompute()

chamfer7 = body11.newObject("PartDesign::Chamfer", "Chamfer006")
chamfer7.Base = (pad11, edges_at(pad11, [
    (369.097, 92.075, 749.3),
    (413.547, 92.075, 749.3),
    (391.322, 69.85, 749.3),
    (391.322, 114.3, 749.3),
]))
chamfer7.Size = Q("0.5 in")
body12 = doc.addObject("PartDesign::Body", "Body011")

# Sketch on XZ plane
sketch12 = body12.newObject("Sketcher::SketchObject", "Sketch011")
sketch12.AttachmentSupport = (doc.getObject("XZ_Plane011"), [""])
sketch12.MapMode = "FlatFace"
sketch12.AttachmentOffset = App.Placement(App.Vector(0, 0, -2.75 * 25.4), App.Rotation())
sketch12.addGeometry([
    Part.LineSegment(App.Vector(136.686939, 749.3, 0), App.Vector(136.686939, 38.1, 0)),
    Part.LineSegment(App.Vector(136.686939, 38.1, 0), App.Vector(92.236939, 38.1, 0)),
    Part.LineSegment(App.Vector(92.236939, 38.1, 0), App.Vector(92.236939, 749.3, 0)),
    Part.LineSegment(App.Vector(92.236939, 749.3, 0), App.Vector(136.686939, 749.3, 0)),
], False)
sketch12.addConstraint([
    Sketcher.Constraint("Coincident", 0, 2, 1, 1),
    Sketcher.Constraint("Coincident", 1, 2, 2, 1),
    Sketcher.Constraint("Coincident", 2, 2, 3, 1),
    Sketcher.Constraint("Coincident", 3, 2, 0, 1),
    Sketcher.Constraint("Vertical", 0),
    Sketcher.Constraint("Horizontal", 1),
    Sketcher.Constraint("Vertical", 2),
    Sketcher.Constraint("Horizontal", 3),
    Sketcher.Constraint("DistanceY", 0, 2, 0, 1, Q("28 in")),
    Sketcher.Constraint("DistanceX", 1, 2, 1, 1, Q("1.75 in")),
    Sketcher.Constraint("DistanceY", -1, 1, 0, 2, Q("1.5 in")),
    Sketcher.Constraint("DistanceX", -1, 1, 0, 2, Q("136.686939 mm")),
])
pad12 = body12.newObject("PartDesign::Pad", "Pad011")
pad12.Profile = sketch12
pad12.Length = Q("1.75 in")
pad12.Reversed = True
doc.recompute()

chamfer8 = body12.newObject("PartDesign::Chamfer", "Chamfer007")
chamfer8.Base = (pad12, edges_at(pad12, [
    (92.237, 92.075, 749.3),
    (136.687, 92.075, 749.3),
    (114.462, 69.85, 749.3),
    (114.462, 114.3, 749.3),
]))
chamfer8.Size = Q("0.5 in")
body13 = doc.addObject("PartDesign::Body", "Body012")

# Sketch on XZ plane
sketch13 = body13.newObject("Sketcher::SketchObject", "Sketch012")
sketch13.AttachmentSupport = (doc.getObject("XZ_Plane012"), [""])
sketch13.MapMode = "FlatFace"
sketch13.AttachmentOffset = App.Placement(App.Vector(0, 0, -2.75 * 25.4), App.Rotation())
sketch13.addGeometry([
    Part.LineSegment(App.Vector(-140.173061, 749.3, 0), App.Vector(-140.173061, 38.1, 0)),
    Part.LineSegment(App.Vector(-140.173061, 38.1, 0), App.Vector(-184.623061, 38.1, 0)),
    Part.LineSegment(App.Vector(-184.623061, 38.1, 0), App.Vector(-184.623061, 749.3, 0)),
    Part.LineSegment(App.Vector(-184.623061, 749.3, 0), App.Vector(-140.173061, 749.3, 0)),
], False)
sketch13.addConstraint([
    Sketcher.Constraint("Coincident", 0, 2, 1, 1),
    Sketcher.Constraint("Coincident", 1, 2, 2, 1),
    Sketcher.Constraint("Coincident", 2, 2, 3, 1),
    Sketcher.Constraint("Coincident", 3, 2, 0, 1),
    Sketcher.Constraint("Vertical", 0),
    Sketcher.Constraint("Horizontal", 1),
    Sketcher.Constraint("Vertical", 2),
    Sketcher.Constraint("Horizontal", 3),
    Sketcher.Constraint("DistanceY", 0, 2, 0, 1, Q("28 in")),
    Sketcher.Constraint("DistanceX", 1, 2, 1, 1, Q("1.75 in")),
    Sketcher.Constraint("DistanceY", -1, 1, 0, 2, Q("1.5 in")),
    Sketcher.Constraint("DistanceX", 0, 2, -1, 1, Q("140.173061 mm")),
])
pad13 = body13.newObject("PartDesign::Pad", "Pad012")
pad13.Profile = sketch13
pad13.Length = Q("1.75 in")
pad13.Reversed = True
doc.recompute()

chamfer9 = body13.newObject("PartDesign::Chamfer", "Chamfer008")
chamfer9.Base = (pad13, edges_at(pad13, [
    (-184.623, 92.075, 749.3),
    (-140.173, 92.075, 749.3),
    (-162.398, 69.85, 749.3),
    (-162.398, 114.3, 749.3),
]))
chamfer9.Size = Q("0.5 in")
body14 = doc.addObject("PartDesign::Body", "Body013")

# Sketch on XZ plane
sketch14 = body14.newObject("Sketcher::SketchObject", "Sketch013")
sketch14.AttachmentSupport = (doc.getObject("XZ_Plane013"), [""])
sketch14.MapMode = "FlatFace"
sketch14.AttachmentOffset = App.Placement(App.Vector(0, 0, -2.75 * 25.4), App.Rotation())
sketch14.addGeometry([
    Part.LineSegment(App.Vector(-417.033061, 749.3, 0), App.Vector(-417.033061, 38.1, 0)),
    Part.LineSegment(App.Vector(-417.033061, 38.1, 0), App.Vector(-461.483061, 38.1, 0)),
    Part.LineSegment(App.Vector(-461.483061, 38.1, 0), App.Vector(-461.483061, 749.3, 0)),
    Part.LineSegment(App.Vector(-461.483061, 749.3, 0), App.Vector(-417.033061, 749.3, 0)),
], False)
sketch14.addConstraint([
    Sketcher.Constraint("Coincident", 0, 2, 1, 1),
    Sketcher.Constraint("Coincident", 1, 2, 2, 1),
    Sketcher.Constraint("Coincident", 2, 2, 3, 1),
    Sketcher.Constraint("Coincident", 3, 2, 0, 1),
    Sketcher.Constraint("Vertical", 0),
    Sketcher.Constraint("Horizontal", 1),
    Sketcher.Constraint("Vertical", 2),
    Sketcher.Constraint("Horizontal", 3),
    Sketcher.Constraint("DistanceY", 0, 2, 0, 1, Q("28 in")),
    Sketcher.Constraint("DistanceX", 1, 2, 1, 1, Q("1.75 in")),
    Sketcher.Constraint("DistanceY", -1, 1, 0, 2, Q("1.5 in")),
    Sketcher.Constraint("DistanceX", 0, 2, -1, 1, Q("417.033061 mm")),
])
pad14 = body14.newObject("PartDesign::Pad", "Pad013")
pad14.Profile = sketch14
pad14.Length = Q("1.75 in")
pad14.Reversed = True
doc.recompute()

chamfer10 = body14.newObject("PartDesign::Chamfer", "Chamfer009")
chamfer10.Base = (pad14, edges_at(pad14, [
    (-461.483, 92.075, 749.3),
    (-417.033, 92.075, 749.3),
    (-439.258, 69.85, 749.3),
    (-439.258, 114.3, 749.3),
]))
chamfer10.Size = Q("0.5 in")
body15 = doc.addObject("PartDesign::Body", "Body014")

# Sketch on XZ plane
sketch15 = body15.newObject("Sketcher::SketchObject", "Sketch014")
sketch15.AttachmentSupport = (doc.getObject("XZ_Plane014"), [""])
sketch15.MapMode = "FlatFace"
sketch15.AttachmentOffset = App.Placement(App.Vector(0, 0, -2.75 * 25.4), App.Rotation())
sketch15.addGeometry([
    Part.LineSegment(App.Vector(-693.893061, 749.3, 0), App.Vector(-693.893061, 38.1, 0)),
    Part.LineSegment(App.Vector(-693.893061, 38.1, 0), App.Vector(-738.343061, 38.1, 0)),
    Part.LineSegment(App.Vector(-738.343061, 38.1, 0), App.Vector(-738.343061, 749.3, 0)),
    Part.LineSegment(App.Vector(-738.343061, 749.3, 0), App.Vector(-693.893061, 749.3, 0)),
], False)
sketch15.addConstraint([
    Sketcher.Constraint("Coincident", 0, 2, 1, 1),
    Sketcher.Constraint("Coincident", 1, 2, 2, 1),
    Sketcher.Constraint("Coincident", 2, 2, 3, 1),
    Sketcher.Constraint("Coincident", 3, 2, 0, 1),
    Sketcher.Constraint("Vertical", 0),
    Sketcher.Constraint("Horizontal", 1),
    Sketcher.Constraint("Vertical", 2),
    Sketcher.Constraint("Horizontal", 3),
    Sketcher.Constraint("DistanceY", 0, 2, 0, 1, Q("28 in")),
    Sketcher.Constraint("DistanceX", 1, 2, 1, 1, Q("1.75 in")),
    Sketcher.Constraint("DistanceY", -1, 1, 0, 2, Q("1.5 in")),
    Sketcher.Constraint("DistanceX", 0, 2, -1, 1, Q("693.893061 mm")),
])
pad15 = body15.newObject("PartDesign::Pad", "Pad014")
pad15.Profile = sketch15
pad15.Length = Q("1.75 in")
pad15.Reversed = True
doc.recompute()

chamfer11 = body15.newObject("PartDesign::Chamfer", "Chamfer010")
chamfer11.Base = (pad15, edges_at(pad15, [
    (-738.343, 92.075, 749.3),
    (-693.893, 92.075, 749.3),
    (-716.118, 69.85, 749.3),
    (-716.118, 114.3, 749.3),
]))
chamfer11.Size = Q("0.5 in")

doc.recompute()
